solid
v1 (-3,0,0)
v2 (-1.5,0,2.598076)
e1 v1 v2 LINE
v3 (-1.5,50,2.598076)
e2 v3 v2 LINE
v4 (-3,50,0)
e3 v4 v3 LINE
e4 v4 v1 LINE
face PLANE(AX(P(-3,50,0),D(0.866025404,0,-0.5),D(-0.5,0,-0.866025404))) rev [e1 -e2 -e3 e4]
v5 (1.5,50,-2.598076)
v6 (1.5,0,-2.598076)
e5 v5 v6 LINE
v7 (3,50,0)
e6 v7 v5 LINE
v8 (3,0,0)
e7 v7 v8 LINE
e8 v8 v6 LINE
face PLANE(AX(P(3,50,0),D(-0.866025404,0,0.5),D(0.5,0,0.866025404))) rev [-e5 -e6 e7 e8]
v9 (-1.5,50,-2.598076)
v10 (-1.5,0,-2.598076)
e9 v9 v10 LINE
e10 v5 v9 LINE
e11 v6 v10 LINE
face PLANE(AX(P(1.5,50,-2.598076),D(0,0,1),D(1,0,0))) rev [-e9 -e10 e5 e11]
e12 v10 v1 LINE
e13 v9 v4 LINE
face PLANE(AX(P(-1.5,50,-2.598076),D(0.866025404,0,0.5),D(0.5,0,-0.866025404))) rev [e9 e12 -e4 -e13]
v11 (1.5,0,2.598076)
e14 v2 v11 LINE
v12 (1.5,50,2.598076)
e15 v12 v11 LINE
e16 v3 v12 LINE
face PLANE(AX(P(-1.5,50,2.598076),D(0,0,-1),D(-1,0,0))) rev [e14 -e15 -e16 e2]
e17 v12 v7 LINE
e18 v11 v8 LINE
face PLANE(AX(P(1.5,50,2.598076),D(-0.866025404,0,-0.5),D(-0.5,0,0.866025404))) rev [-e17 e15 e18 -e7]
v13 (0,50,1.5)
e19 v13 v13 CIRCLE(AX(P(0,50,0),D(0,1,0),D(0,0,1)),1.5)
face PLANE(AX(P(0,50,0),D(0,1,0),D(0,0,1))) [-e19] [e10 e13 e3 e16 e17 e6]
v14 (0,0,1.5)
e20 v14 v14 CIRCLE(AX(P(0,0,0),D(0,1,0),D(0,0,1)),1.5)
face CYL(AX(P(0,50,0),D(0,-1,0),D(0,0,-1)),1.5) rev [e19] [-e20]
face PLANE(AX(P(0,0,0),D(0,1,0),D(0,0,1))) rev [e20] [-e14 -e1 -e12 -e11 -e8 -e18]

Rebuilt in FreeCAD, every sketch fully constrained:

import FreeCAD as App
import Part
import Sketcher
from FreeCAD import Vector
Q = App.Units.Quantity


def add_polygon(sketch, points):
    """Adds a closed chain of lines whose ends are joined by coincident constraints."""
    first, n = sketch.GeometryCount, len(points)
    for a, b in zip(points, points[1:] + points[:1]):
        sketch.addGeometry(Part.LineSegment(App.Vector(*a, 0), App.Vector(*b, 0)), False)
    for i in range(n):
        sketch.addConstraint(Sketcher.Constraint("Coincident", first + i, 2, first + (i + 1) % n, 1))

doc = App.newDocument("Part")
body = doc.addObject("PartDesign::Body", "Body")

sketch1 = body.newObject("Sketcher::SketchObject", "Sketch")
sketch1.AttachmentSupport = (doc.getObject("XZ_Plane"), [""])
sketch1.MapMode = "FlatFace"
add_polygon(sketch1, [(3, 0), (1.5, -2.6), (-1.5, -2.6), (-3, 0), (-1.5, 2.6), (1.5, 2.6)])
sketch1.addGeometry(Part.Circle(Vector(0, 0, 0), Vector(0, 0, 1), 1.5), False)
sketch1.addConstraint([
    Sketcher.Constraint("Horizontal", 1),
    Sketcher.Constraint("Horizontal", 4),
    Sketcher.Constraint("Coincident", 6, 3, -1, 1),
    Sketcher.Constraint("Symmetric", 0, 2, 3, 2, -1, 1),
    Sketcher.Constraint("Symmetric", 2, 2, 5, 2, -1, 1),
    Sketcher.Constraint("PointOnObject", 2, 2, -1),
    Sketcher.Constraint("Parallel", 2, 5),
    Sketcher.Constraint("Vertical", 1, 2, 3, 2),
    Sketcher.Constraint("Diameter", 6, 3.0),
    Sketcher.Constraint("DistanceX", 1, 2, 1, 1, 3.0),
    Sketcher.Constraint("Angle", 0, Q("-120 deg")),
    Sketcher.Constraint("Distance", 0, 3.0),
])
pad1 = body.newObject("PartDesign::Pad", "Pad")
pad1.Profile = sketch1
pad1.Length = 50
pad1.Reversed = True

doc.recompute()
